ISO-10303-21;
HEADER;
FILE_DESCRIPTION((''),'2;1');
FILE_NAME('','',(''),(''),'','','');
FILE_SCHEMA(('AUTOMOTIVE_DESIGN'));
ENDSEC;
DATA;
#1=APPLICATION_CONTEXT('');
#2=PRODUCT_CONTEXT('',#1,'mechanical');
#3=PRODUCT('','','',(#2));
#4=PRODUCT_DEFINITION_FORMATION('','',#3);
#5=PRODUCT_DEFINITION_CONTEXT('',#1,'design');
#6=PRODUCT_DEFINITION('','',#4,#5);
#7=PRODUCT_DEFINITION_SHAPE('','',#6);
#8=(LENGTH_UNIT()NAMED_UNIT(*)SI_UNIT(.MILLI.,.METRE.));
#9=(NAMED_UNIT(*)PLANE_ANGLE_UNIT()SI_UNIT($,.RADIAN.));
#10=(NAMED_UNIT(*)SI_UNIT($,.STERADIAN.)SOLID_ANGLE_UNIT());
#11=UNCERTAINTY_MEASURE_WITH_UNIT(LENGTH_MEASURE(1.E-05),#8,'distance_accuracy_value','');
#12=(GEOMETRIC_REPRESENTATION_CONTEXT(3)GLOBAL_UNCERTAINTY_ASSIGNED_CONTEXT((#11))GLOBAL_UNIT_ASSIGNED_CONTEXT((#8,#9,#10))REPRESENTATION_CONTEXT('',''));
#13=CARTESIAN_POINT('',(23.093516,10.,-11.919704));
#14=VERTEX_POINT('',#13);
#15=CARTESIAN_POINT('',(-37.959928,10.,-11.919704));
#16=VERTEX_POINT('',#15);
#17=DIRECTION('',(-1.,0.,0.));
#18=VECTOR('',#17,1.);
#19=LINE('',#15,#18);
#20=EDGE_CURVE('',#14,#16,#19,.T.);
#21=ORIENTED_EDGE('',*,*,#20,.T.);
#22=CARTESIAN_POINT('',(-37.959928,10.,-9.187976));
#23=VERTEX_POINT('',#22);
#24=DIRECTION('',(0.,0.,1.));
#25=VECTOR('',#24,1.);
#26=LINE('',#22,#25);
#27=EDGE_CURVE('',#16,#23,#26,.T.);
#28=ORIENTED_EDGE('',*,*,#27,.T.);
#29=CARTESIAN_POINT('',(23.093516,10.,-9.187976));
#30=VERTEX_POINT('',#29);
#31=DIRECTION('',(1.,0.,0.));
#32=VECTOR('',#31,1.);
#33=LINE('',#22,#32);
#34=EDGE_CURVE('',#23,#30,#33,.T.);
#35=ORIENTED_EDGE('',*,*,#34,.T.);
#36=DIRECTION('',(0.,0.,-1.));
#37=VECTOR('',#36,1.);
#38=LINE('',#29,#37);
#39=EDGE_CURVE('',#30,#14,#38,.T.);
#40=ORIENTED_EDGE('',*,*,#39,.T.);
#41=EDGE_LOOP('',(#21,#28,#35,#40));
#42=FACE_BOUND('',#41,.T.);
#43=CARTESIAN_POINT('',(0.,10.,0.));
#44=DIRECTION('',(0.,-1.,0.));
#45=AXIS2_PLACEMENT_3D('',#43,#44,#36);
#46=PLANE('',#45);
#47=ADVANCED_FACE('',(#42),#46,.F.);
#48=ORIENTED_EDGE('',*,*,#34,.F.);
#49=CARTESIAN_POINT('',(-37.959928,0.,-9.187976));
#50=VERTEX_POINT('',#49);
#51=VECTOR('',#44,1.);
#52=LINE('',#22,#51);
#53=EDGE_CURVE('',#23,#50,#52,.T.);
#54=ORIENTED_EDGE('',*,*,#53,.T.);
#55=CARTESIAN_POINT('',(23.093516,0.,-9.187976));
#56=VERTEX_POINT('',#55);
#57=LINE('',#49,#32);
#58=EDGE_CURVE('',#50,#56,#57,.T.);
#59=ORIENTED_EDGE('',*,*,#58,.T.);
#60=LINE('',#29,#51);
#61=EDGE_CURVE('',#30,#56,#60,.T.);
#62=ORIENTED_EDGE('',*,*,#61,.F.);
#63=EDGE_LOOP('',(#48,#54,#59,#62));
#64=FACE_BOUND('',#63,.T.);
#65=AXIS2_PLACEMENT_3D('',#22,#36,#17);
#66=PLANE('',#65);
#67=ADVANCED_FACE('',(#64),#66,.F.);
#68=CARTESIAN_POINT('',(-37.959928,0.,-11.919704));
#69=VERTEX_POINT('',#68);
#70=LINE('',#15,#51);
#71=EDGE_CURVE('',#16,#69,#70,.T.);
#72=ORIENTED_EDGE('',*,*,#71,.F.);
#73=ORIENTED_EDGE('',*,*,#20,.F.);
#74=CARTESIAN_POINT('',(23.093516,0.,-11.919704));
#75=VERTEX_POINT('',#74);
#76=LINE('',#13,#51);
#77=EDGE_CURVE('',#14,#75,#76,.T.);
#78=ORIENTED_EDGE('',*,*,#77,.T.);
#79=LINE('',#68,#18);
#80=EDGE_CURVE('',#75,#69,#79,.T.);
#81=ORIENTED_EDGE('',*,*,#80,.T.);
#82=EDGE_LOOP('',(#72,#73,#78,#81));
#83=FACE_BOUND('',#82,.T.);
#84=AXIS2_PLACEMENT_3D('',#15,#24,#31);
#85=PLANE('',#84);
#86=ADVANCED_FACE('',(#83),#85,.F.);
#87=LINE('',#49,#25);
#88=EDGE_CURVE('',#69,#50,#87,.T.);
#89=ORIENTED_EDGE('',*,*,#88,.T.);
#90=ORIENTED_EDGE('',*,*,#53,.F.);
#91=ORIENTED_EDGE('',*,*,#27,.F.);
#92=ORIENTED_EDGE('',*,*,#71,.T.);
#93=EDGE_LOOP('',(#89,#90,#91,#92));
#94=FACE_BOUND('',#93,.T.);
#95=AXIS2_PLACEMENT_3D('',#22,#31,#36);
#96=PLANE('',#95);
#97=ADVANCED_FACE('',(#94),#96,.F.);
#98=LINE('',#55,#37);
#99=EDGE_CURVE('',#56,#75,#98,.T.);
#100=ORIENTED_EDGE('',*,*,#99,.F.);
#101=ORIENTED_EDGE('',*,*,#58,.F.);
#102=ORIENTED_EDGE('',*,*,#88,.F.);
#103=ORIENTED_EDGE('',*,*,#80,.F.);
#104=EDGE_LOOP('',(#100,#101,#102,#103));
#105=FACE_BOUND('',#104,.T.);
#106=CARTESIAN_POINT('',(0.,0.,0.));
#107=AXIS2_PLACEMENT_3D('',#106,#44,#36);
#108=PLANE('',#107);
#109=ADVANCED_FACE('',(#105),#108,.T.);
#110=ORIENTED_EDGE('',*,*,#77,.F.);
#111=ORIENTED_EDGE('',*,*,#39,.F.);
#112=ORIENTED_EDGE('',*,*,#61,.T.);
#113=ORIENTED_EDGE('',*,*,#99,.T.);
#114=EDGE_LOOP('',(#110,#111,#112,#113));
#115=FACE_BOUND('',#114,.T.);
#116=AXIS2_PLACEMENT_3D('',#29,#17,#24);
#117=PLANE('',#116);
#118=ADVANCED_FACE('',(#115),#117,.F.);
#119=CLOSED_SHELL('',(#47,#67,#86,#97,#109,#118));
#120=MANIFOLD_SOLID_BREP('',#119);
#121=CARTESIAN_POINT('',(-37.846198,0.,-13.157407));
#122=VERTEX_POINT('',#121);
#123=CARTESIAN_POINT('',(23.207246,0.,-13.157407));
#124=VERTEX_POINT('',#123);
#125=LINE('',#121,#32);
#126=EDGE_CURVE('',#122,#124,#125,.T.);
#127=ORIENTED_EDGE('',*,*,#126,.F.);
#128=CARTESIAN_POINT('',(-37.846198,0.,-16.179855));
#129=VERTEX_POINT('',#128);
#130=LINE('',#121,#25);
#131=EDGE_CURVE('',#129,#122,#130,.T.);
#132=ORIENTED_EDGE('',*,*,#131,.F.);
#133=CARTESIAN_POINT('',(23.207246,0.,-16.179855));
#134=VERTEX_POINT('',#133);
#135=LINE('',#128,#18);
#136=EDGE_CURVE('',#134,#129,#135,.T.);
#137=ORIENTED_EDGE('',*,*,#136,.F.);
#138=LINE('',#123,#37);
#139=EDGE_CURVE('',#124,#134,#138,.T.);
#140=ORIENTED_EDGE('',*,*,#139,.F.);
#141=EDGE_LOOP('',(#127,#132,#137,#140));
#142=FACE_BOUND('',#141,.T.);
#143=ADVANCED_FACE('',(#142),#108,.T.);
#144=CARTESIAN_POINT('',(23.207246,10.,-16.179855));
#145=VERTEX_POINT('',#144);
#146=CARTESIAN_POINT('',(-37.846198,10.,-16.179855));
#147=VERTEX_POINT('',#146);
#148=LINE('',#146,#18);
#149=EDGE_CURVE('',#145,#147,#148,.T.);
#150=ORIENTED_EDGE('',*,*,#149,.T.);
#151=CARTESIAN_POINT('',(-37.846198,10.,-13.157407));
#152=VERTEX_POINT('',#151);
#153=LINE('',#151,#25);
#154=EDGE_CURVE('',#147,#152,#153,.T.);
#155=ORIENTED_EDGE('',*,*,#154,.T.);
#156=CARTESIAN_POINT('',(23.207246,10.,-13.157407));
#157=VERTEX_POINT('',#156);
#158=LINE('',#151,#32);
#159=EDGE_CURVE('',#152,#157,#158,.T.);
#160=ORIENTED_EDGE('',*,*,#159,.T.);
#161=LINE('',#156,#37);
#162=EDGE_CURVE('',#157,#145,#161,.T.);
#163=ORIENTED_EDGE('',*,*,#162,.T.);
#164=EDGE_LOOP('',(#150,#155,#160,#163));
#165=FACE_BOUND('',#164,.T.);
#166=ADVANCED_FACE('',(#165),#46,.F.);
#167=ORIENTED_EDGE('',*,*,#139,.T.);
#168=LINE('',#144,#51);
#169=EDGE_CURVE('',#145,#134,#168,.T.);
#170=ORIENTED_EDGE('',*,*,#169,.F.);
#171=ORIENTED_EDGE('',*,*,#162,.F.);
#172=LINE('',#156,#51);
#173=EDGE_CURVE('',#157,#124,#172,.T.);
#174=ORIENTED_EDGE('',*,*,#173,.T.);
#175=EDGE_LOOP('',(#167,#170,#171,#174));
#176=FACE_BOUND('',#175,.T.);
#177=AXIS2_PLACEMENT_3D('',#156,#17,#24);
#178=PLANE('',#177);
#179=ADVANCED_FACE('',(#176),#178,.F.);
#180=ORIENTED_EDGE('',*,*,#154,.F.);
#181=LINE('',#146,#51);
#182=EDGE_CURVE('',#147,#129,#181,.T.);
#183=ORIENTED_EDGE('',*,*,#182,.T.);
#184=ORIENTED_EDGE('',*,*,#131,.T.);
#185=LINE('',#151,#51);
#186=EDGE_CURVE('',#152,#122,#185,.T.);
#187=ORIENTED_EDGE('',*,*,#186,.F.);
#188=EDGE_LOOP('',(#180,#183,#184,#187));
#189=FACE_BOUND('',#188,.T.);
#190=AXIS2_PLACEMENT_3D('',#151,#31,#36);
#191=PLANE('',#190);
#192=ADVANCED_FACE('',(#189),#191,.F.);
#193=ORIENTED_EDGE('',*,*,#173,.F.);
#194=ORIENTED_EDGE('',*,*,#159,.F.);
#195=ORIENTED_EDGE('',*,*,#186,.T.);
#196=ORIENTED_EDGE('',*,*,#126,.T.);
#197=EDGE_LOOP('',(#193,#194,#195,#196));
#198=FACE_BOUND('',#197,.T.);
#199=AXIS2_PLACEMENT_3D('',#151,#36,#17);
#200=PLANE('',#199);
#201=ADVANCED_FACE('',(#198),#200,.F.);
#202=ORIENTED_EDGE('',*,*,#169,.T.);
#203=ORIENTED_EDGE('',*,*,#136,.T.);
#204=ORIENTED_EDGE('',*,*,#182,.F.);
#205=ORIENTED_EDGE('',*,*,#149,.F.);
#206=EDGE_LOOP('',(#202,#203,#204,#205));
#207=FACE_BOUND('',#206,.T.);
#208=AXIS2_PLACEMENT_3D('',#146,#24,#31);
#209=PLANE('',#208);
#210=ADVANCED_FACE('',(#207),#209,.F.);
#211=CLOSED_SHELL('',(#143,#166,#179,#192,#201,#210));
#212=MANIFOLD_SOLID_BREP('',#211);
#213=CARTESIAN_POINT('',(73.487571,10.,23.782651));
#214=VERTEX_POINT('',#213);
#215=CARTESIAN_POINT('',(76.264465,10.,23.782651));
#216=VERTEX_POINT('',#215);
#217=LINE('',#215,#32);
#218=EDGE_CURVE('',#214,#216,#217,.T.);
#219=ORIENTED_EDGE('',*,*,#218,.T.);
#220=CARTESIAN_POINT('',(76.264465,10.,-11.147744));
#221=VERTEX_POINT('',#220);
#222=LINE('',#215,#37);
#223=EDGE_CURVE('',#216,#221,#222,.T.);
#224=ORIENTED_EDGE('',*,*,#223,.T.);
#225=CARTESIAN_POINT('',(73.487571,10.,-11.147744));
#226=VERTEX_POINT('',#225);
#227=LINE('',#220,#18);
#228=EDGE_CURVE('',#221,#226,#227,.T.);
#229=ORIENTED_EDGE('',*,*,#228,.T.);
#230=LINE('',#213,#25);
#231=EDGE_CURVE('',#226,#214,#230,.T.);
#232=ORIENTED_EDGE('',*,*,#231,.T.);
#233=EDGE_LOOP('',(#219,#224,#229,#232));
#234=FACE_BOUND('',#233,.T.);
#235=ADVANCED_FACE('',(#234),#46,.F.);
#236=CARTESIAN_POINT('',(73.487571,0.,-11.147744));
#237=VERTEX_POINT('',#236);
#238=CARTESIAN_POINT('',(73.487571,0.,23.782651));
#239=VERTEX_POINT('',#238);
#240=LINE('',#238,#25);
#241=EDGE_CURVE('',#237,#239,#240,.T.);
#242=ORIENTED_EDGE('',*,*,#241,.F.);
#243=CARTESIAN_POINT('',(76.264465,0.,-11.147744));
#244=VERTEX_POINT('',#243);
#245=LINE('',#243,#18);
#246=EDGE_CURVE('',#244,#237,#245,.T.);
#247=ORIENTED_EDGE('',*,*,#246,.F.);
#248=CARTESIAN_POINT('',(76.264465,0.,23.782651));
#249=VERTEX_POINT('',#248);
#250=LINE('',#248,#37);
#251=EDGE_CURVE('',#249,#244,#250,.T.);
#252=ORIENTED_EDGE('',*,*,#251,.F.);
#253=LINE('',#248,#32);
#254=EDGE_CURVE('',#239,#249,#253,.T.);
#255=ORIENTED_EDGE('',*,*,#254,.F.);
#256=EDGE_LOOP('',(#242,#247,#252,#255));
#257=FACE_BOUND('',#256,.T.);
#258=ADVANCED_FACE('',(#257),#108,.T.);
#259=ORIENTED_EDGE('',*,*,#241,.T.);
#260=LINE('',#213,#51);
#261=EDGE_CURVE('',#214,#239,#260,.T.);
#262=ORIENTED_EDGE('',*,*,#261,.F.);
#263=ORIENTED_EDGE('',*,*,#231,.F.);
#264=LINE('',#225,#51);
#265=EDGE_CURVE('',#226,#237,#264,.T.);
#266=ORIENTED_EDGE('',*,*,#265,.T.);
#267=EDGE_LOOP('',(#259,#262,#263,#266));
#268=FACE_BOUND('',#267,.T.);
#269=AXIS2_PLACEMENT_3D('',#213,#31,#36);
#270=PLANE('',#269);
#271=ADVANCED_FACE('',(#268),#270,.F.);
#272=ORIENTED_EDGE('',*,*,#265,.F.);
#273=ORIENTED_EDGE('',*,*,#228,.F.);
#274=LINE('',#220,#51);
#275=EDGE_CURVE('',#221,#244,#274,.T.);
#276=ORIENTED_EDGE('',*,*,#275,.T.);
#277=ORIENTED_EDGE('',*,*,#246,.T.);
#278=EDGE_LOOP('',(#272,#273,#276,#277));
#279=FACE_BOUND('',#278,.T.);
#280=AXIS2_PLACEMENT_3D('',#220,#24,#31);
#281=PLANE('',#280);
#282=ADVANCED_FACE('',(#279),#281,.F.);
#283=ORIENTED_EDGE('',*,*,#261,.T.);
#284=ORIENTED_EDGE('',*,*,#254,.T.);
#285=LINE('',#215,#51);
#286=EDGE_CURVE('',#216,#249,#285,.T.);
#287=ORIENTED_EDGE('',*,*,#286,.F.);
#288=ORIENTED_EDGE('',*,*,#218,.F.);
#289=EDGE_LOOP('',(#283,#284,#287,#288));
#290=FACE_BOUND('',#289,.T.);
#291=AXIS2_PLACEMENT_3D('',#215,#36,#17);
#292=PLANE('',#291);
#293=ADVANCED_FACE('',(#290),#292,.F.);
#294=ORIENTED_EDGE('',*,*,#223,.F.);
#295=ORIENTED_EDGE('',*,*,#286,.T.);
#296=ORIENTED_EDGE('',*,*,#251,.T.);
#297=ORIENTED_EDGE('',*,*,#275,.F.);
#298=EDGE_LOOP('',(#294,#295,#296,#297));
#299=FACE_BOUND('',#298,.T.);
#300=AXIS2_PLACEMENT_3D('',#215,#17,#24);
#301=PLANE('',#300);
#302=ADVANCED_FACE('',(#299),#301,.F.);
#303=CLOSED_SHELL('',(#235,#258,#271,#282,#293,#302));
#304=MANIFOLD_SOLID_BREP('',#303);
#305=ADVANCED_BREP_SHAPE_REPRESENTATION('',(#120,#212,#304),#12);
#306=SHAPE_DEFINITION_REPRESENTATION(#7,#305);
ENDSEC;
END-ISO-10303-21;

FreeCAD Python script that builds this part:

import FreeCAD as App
import Part
import Sketcher

V = App.Vector
Q = App.Units.Quantity

doc = App.newDocument("Part")
params = doc.addObject("Spreadsheet::Sheet", "Params")
for row, (alias, value) in enumerate([
    ("pad1_length", "10 mm"),
    ("pad2_length", "10 mm"),
    ("pad3_length", "10 mm"),
], start=1):
    params.set(f"A{row}", alias)
    params.set(f"B{row}", "=" + value)
    params.setAlias(f"B{row}", alias)

body = doc.addObject("PartDesign::Body", "Body")

# Sketch on XZ plane
sketch1 = body.newObject("Sketcher::SketchObject", "Sketch")
sketch1.AttachmentSupport = (doc.getObject("XZ_Plane"), [""])
sketch1.MapMode = "FlatFace"
sketch1.addGeometry([
    Part.LineSegment(V(-37.8, -16.2, 0), V(-37.8, -13.2, 0)),
    Part.LineSegment(V(-37.8, -13.2, 0), V(23.2, -13.2, 0)),
    Part.LineSegment(V(23.2, -13.2, 0), V(23.2, -16.2, 0)),
    Part.LineSegment(V(23.2, -16.2, 0), V(-37.8, -16.2, 0)),
], False)
sketch1.addConstraint([
    Sketcher.Constraint("Coincident", 0, 2, 1, 1),
    Sketcher.Constraint("Coincident", 1, 2, 2, 1),
    Sketcher.Constraint("Coincident", 2, 2, 3, 1),
    Sketcher.Constraint("Coincident", 3, 2, 0, 1),
    Sketcher.Constraint("Vertical", 0),
    Sketcher.Constraint("Horizontal", 1),
    Sketcher.Constraint("Vertical", 2),
    Sketcher.Constraint("Horizontal", 3),
    Sketcher.Constraint("DistanceX", 0, 2, -1, 1, Q("37.846198 mm")),
    Sketcher.Constraint("DistanceX", 1, 1, 1, 2, Q("61.053445 mm")),
    Sketcher.Constraint("DistanceY", 0, 1, 0, 2, Q("3.022448 mm")),
    Sketcher.Constraint("DistanceY", 0, 2, -1, 1, Q("13.157407 mm")),
])
pad1 = body.newObject("PartDesign::Pad", "Pad")
pad1.Profile = sketch1
pad1.setExpression("Length", "Params.pad1_length")
pad1.Reversed = True
body2 = doc.addObject("PartDesign::Body", "Body001")

# Sketch on XZ plane
sketch2 = body2.newObject("Sketcher::SketchObject", "Sketch001")
sketch2.AttachmentSupport = (doc.getObject("XZ_Plane001"), [""])
sketch2.MapMode = "FlatFace"
sketch2.addGeometry([
    Part.LineSegment(V(-38, -11.9, 0), V(-38, -9.2, 0)),
    Part.LineSegment(V(-38, -9.2, 0), V(23.1, -9.2, 0)),
    Part.LineSegment(V(23.1, -9.2, 0), V(23.1, -11.9, 0)),
    Part.LineSegment(V(23.1, -11.9, 0), V(-38, -11.9, 0)),
], False)
sketch2.addConstraint([
    Sketcher.Constraint("Coincident", 0, 2, 1, 1),
    Sketcher.Constraint("Coincident", 1, 2, 2, 1),
    Sketcher.Constraint("Coincident", 2, 2, 3, 1),
    Sketcher.Constraint("Coincident", 3, 2, 0, 1),
    Sketcher.Constraint("Vertical", 0),
    Sketcher.Constraint("Horizontal", 1),
    Sketcher.Constraint("Vertical", 2),
    Sketcher.Constraint("Horizontal", 3),
    Sketcher.Constraint("DistanceY", 0, 1, 0, 2, Q("2.731728 mm")),
    Sketcher.Constraint("DistanceX", 1, 1, 1, 2, Q("61.053445 mm")),
    Sketcher.Constraint("DistanceX", 0, 2, -1, 1, Q("37.959928 mm")),
    Sketcher.Constraint("DistanceY", 0, 2, -1, 1, Q("9.187976 mm")),
])
pad2 = body2.newObject("PartDesign::Pad", "Pad001")
pad2.Profile = sketch2
pad2.setExpression("Length", "Params.pad2_length")
pad2.Reversed = True
body3 = doc.addObject("PartDesign::Body", "Body002")

# Sketch on XZ plane
sketch3 = body3.newObject("Sketcher::SketchObject", "Sketch002")
sketch3.AttachmentSupport = (doc.getObject("XZ_Plane002"), [""])
sketch3.MapMode = "FlatFace"
sketch3.addGeometry([
    Part.LineSegment(V(73.5, -11.1, 0), V(73.5, 23.8, 0)),
    Part.LineSegment(V(73.5, 23.8, 0), V(76.3, 23.8, 0)),
    Part.LineSegment(V(76.3, 23.8, 0), V(76.3, -11.1, 0)),
    Part.LineSegment(V(76.3, -11.1, 0), V(73.5, -11.1, 0)),
], False)
sketch3.addConstraint([
    Sketcher.Constraint("Coincident", 0, 2, 1, 1),
    Sketcher.Constraint("Coincident", 1, 2, 2, 1),
    Sketcher.Constraint("Coincident", 2, 2, 3, 1),
    Sketcher.Constraint("Coincident", 3, 2, 0, 1),
    Sketcher.Constraint("Vertical", 0),
    Sketcher.Constraint("Horizontal", 1),
    Sketcher.Constraint("Vertical", 2),
    Sketcher.Constraint("Horizontal", 3),
    Sketcher.Constraint("DistanceX", 1, 1, 1, 2, Q("2.776893 mm")),
    Sketcher.Constraint("DistanceY", 0, 1, 0, 2, Q("34.930395 mm")),
    Sketcher.Constraint("DistanceX", -1, 1, 0, 2, Q("73.487571 mm")),
    Sketcher.Constraint("DistanceY", -1, 1, 0, 2, Q("23.782651 mm")),
])
pad3 = body3.newObject("PartDesign::Pad", "Pad002")
pad3.Profile = sketch3
pad3.setExpression("Length", "Params.pad3_length")
pad3.Reversed = True

doc.recompute()
